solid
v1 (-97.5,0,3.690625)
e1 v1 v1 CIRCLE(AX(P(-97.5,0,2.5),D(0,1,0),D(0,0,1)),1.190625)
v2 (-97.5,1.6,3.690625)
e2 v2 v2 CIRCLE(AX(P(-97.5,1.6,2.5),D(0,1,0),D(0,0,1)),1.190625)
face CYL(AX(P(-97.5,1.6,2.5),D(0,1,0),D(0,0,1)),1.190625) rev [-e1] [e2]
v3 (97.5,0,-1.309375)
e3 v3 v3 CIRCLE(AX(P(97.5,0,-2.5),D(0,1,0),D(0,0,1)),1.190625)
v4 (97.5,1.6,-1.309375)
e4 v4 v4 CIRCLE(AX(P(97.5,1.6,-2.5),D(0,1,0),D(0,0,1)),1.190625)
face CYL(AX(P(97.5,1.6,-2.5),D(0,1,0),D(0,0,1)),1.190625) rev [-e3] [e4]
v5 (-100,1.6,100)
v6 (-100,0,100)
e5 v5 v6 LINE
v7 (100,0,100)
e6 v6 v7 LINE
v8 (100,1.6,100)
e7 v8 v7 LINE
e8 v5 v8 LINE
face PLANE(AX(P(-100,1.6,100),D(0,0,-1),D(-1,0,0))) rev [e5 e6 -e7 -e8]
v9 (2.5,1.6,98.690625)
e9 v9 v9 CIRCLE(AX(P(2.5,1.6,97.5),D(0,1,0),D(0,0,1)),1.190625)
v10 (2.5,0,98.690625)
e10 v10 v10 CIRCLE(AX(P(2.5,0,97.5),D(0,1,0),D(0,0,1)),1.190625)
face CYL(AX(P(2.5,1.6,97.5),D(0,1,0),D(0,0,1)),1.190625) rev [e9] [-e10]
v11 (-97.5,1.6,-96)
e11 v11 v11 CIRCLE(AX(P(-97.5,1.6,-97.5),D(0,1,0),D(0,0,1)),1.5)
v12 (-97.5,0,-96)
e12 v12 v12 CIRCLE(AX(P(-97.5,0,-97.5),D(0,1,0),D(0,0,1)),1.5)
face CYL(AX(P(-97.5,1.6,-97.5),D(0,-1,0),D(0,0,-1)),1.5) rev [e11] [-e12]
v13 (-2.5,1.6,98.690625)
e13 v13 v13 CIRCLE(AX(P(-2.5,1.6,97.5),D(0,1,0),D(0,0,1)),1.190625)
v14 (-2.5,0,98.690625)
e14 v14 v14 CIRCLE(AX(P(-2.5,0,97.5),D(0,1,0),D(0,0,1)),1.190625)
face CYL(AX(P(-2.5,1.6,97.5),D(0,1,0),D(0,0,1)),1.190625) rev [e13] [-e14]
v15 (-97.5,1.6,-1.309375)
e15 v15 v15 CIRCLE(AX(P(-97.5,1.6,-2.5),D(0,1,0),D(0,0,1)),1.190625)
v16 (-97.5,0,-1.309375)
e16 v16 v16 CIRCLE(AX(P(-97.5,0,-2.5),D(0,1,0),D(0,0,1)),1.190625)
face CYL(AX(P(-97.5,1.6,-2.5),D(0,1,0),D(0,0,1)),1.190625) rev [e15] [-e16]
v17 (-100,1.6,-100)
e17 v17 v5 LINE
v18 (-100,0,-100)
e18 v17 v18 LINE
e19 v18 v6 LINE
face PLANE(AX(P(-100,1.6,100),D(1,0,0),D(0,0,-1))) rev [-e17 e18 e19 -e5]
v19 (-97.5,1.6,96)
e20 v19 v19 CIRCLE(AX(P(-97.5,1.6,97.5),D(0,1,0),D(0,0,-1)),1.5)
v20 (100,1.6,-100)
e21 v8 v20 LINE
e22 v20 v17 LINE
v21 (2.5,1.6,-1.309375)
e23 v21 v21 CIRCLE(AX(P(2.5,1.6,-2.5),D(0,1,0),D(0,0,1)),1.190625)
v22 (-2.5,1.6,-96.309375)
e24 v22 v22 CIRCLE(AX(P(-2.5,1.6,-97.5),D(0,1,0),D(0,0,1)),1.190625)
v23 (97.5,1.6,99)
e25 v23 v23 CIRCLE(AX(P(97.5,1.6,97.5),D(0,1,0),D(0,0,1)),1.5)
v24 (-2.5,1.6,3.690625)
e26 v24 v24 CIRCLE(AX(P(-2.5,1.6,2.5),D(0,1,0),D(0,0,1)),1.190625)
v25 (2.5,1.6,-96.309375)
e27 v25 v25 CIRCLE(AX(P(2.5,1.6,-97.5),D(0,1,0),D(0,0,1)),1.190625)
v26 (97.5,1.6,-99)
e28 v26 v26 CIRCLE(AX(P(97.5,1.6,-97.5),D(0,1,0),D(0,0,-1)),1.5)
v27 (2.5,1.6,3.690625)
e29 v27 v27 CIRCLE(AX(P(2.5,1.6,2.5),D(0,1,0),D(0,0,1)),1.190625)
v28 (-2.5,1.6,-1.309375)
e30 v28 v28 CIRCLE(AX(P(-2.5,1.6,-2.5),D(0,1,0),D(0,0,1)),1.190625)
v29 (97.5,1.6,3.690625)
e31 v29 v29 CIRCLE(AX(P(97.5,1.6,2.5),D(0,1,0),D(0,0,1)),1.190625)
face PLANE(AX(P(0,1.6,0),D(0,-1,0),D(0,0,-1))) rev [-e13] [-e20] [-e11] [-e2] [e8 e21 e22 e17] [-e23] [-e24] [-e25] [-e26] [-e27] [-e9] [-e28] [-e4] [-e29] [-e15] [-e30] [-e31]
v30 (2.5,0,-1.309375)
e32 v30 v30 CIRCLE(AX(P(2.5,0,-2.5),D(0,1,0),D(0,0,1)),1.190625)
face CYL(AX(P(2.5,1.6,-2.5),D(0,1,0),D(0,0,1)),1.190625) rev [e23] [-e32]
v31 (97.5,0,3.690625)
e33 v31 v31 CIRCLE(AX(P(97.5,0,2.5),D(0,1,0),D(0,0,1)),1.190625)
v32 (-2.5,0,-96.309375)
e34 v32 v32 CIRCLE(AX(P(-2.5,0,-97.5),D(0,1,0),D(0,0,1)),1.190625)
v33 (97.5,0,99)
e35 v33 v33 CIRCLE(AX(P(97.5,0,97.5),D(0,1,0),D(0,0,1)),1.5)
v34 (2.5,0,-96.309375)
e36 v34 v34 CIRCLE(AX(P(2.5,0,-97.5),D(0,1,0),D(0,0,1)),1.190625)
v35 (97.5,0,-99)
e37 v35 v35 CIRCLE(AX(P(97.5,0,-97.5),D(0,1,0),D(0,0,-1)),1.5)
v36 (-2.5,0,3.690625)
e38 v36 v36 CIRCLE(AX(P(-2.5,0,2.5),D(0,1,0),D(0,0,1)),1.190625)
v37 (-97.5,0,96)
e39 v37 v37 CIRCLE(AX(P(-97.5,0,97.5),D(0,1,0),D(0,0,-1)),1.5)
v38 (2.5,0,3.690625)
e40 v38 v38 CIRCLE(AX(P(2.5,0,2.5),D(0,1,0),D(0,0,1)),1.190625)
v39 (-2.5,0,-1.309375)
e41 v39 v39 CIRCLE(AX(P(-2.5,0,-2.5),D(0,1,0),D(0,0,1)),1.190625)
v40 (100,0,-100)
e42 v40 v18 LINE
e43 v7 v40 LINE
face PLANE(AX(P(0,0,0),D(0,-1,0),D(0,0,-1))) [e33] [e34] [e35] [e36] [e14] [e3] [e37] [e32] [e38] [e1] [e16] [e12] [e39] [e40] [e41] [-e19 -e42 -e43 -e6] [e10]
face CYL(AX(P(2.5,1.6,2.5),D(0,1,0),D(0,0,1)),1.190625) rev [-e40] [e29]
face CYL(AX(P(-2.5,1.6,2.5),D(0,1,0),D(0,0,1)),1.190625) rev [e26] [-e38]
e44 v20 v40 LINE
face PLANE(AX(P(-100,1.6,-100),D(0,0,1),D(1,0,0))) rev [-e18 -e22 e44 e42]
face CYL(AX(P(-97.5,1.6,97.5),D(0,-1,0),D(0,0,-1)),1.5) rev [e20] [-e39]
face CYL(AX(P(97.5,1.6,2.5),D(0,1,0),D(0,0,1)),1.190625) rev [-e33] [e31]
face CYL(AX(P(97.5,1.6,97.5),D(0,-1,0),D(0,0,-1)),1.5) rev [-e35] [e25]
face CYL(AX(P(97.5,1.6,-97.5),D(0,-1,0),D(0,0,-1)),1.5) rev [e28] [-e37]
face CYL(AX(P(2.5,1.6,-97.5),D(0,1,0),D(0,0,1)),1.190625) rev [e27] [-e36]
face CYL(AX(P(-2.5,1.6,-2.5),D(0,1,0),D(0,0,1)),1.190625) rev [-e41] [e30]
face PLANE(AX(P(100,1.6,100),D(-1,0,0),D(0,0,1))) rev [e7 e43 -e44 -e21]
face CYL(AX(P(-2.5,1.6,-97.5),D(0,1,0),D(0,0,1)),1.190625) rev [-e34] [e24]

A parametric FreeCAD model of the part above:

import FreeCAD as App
import Part
import Sketcher
Q = App.Units.Quantity

doc = App.newDocument("Part")
body = doc.addObject("PartDesign::Body", "Body")

# Sketch on XZ plane
sketch1 = body.newObject("Sketcher::SketchObject", "Sketch")
sketch1.AttachmentSupport = (doc.getObject("XZ_Plane"), [""])
sketch1.MapMode = "FlatFace"
sketch1.addGeometry([
    Part.LineSegment(App.Vector(-100, -100, 0), App.Vector(-100, 100, 0)),  # 0
    Part.LineSegment(App.Vector(-100, 100, 0), App.Vector(100, 100, 0)),  # 1
    Part.LineSegment(App.Vector(100, 100, 0), App.Vector(100, -100, 0)),  # 2
    Part.LineSegment(App.Vector(100, -100, 0), App.Vector(-100, -100, 0)),  # 3
    Part.Circle(App.Vector(-97.5, 97.5, 0), App.Vector(0, 0, 1), 1.5),  # 4
    Part.Circle(App.Vector(97.5, 97.5, 0), App.Vector(0, 0, 1), 1.5),  # 5
    Part.Circle(App.Vector(-97.5, -97.5, 0), App.Vector(0, 0, 1), 1.5),  # 6
    Part.Circle(App.Vector(97.5, -97.5, 0), App.Vector(0, 0, 1), 1.5),  # 7
], False)
sketch1.addConstraint([
    Sketcher.Constraint("Coincident", 0, 2, 1, 1),
    Sketcher.Constraint("Coincident", 1, 2, 2, 1),
    Sketcher.Constraint("Coincident", 2, 2, 3, 1),
    Sketcher.Constraint("Coincident", 3, 2, 0, 1),
    Sketcher.Constraint("Vertical", 0),
    Sketcher.Constraint("Horizontal", 1),
    Sketcher.Constraint("Vertical", 2),
    Sketcher.Constraint("Horizontal", 3),
    Sketcher.Constraint("Equal", 4, 5),
    Sketcher.Constraint("Equal", 5, 6),
    Sketcher.Constraint("Equal", 6, 7),
    Sketcher.Constraint("Symmetric", 5, 3, 6, 3, -1, 1),
    Sketcher.Constraint("Symmetric", 4, 3, 7, 3, -1, 1),
    Sketcher.Constraint("Symmetric", 0, 2, 2, 2, -1, 1),
    Sketcher.Constraint("Symmetric", 4, 3, 5, 3, -2),
    Sketcher.Constraint("Equal", 3, 0),
    Sketcher.Constraint("Diameter", 4, Q("3 mm")),
    Sketcher.Constraint("DistanceX", 1, 1, 1, 2, Q("200 mm")),
    Sketcher.Constraint("DistanceX", 4, 3, 5, 3, Q("195 mm")),
    Sketcher.Constraint("DistanceY", 6, 3, 4, 3, Q("195 mm")),
])
pad1 = body.newObject("PartDesign::Pad", "Pad")
pad1.Profile = sketch1
pad1.Length = 1.6
pad1.Reversed = True

# Sketch on XZ plane
sketch2 = body.newObject("Sketcher::SketchObject", "Sketch001")
sketch2.AttachmentSupport = (doc.getObject("XZ_Plane"), [""])
sketch2.MapMode = "FlatFace"
sketch2.AttachmentOffset = App.Placement(App.Vector(0, 0, -1.6), App.Rotation())
sketch2.addGeometry([
    Part.Circle(App.Vector(2.5, 97.5, 0), App.Vector(0, 0, 1), 1.2),  # 0
    Part.Circle(App.Vector(-2.5, 97.5, 0), App.Vector(0, 0, 1), 1.2),  # 1
    Part.Circle(App.Vector(2.5, 2.5, 0), App.Vector(0, 0, 1), 1.2),  # 2
    Part.Circle(App.Vector(-2.5, 2.5, 0), App.Vector(0, 0, 1), 1.2),  # 3
    Part.Circle(App.Vector(-2.5, -2.5, 0), App.Vector(0, 0, 1), 1.2),  # 4
    Part.Circle(App.Vector(2.5, -2.5, 0), App.Vector(0, 0, 1), 1.2),  # 5
    Part.Circle(App.Vector(-97.5, 2.5, 0), App.Vector(0, 0, 1), 1.2),  # 6
    Part.Circle(App.Vector(-97.5, -2.5, 0), App.Vector(0, 0, 1), 1.2),  # 7
    Part.Circle(App.Vector(97.5, 2.5, 0), App.Vector(0, 0, 1), 1.2),  # 8
    Part.Circle(App.Vector(97.5, -2.5, 0), App.Vector(0, 0, 1), 1.2),  # 9
    Part.Circle(App.Vector(2.5, -97.5, 0), App.Vector(0, 0, 1), 1.2),  # 10
    Part.Circle(App.Vector(-2.5, -97.5, 0), App.Vector(0, 0, 1), 1.2),  # 11
], False)
sketch2.addConstraint([
    Sketcher.Constraint("Equal", 0, 1),
    Sketcher.Constraint("Equal", 1, 2),
    Sketcher.Constraint("Equal", 2, 3),
    Sketcher.Constraint("Equal", 3, 4),
    Sketcher.Constraint("Equal", 4, 5),
    Sketcher.Constraint("Equal", 5, 6),
    Sketcher.Constraint("Equal", 6, 7),
    Sketcher.Constraint("Equal", 7, 8),
    Sketcher.Constraint("Equal", 8, 9),
    Sketcher.Constraint("Equal", 9, 10),
    Sketcher.Constraint("Equal", 10, 11),
    Sketcher.Constraint("Symmetric", 2, 3, 4, 3, -1, 1),
    Sketcher.Constraint("Symmetric", 3, 3, 5, 3, -1, 1),
    Sketcher.Constraint("Symmetric", 7, 3, 8, 3, -1, 1),
    Sketcher.Constraint("Symmetric", 6, 3, 9, 3, -1, 1),
    Sketcher.Constraint("Symmetric", 1, 3, 10, 3, -1, 1),
    Sketcher.Constraint("Symmetric", 0, 3, 11, 3, -1, 1),
    Sketcher.Constraint("Symmetric", 0, 3, 1, 3, -2),
    Sketcher.Constraint("Symmetric", 2, 3, 3, 3, -2),
    Sketcher.Constraint("Symmetric", 6, 3, 8, 3, -2),
    Sketcher.Constraint("Horizontal", 3, 3, 6, 3),
    Sketcher.Constraint("Vertical", 0, 3, 2, 3),
    Sketcher.Constraint("DistanceX", 1, 3, 0, 3, Q("5 mm")),
    Sketcher.Constraint("DistanceY", 2, 3, 0, 3, Q("95 mm")),
    Sketcher.Constraint("DistanceY", 4, 3, 3, 3, Q("5 mm")),
    Sketcher.Constraint("DistanceX", 6, 3, 3, 3, Q("95 mm")),
    Sketcher.Constraint("Diameter", 0, Q("2.38125 mm")),
])
doc.recompute()
hole = body.newObject("PartDesign::Hole", "Hole")
hole.Profile = sketch2
hole.ThreadType = "None"
hole.Diameter = 2.38125
hole.DepthType = "ThroughAll"
hole.Reversed = True

doc.recompute()
